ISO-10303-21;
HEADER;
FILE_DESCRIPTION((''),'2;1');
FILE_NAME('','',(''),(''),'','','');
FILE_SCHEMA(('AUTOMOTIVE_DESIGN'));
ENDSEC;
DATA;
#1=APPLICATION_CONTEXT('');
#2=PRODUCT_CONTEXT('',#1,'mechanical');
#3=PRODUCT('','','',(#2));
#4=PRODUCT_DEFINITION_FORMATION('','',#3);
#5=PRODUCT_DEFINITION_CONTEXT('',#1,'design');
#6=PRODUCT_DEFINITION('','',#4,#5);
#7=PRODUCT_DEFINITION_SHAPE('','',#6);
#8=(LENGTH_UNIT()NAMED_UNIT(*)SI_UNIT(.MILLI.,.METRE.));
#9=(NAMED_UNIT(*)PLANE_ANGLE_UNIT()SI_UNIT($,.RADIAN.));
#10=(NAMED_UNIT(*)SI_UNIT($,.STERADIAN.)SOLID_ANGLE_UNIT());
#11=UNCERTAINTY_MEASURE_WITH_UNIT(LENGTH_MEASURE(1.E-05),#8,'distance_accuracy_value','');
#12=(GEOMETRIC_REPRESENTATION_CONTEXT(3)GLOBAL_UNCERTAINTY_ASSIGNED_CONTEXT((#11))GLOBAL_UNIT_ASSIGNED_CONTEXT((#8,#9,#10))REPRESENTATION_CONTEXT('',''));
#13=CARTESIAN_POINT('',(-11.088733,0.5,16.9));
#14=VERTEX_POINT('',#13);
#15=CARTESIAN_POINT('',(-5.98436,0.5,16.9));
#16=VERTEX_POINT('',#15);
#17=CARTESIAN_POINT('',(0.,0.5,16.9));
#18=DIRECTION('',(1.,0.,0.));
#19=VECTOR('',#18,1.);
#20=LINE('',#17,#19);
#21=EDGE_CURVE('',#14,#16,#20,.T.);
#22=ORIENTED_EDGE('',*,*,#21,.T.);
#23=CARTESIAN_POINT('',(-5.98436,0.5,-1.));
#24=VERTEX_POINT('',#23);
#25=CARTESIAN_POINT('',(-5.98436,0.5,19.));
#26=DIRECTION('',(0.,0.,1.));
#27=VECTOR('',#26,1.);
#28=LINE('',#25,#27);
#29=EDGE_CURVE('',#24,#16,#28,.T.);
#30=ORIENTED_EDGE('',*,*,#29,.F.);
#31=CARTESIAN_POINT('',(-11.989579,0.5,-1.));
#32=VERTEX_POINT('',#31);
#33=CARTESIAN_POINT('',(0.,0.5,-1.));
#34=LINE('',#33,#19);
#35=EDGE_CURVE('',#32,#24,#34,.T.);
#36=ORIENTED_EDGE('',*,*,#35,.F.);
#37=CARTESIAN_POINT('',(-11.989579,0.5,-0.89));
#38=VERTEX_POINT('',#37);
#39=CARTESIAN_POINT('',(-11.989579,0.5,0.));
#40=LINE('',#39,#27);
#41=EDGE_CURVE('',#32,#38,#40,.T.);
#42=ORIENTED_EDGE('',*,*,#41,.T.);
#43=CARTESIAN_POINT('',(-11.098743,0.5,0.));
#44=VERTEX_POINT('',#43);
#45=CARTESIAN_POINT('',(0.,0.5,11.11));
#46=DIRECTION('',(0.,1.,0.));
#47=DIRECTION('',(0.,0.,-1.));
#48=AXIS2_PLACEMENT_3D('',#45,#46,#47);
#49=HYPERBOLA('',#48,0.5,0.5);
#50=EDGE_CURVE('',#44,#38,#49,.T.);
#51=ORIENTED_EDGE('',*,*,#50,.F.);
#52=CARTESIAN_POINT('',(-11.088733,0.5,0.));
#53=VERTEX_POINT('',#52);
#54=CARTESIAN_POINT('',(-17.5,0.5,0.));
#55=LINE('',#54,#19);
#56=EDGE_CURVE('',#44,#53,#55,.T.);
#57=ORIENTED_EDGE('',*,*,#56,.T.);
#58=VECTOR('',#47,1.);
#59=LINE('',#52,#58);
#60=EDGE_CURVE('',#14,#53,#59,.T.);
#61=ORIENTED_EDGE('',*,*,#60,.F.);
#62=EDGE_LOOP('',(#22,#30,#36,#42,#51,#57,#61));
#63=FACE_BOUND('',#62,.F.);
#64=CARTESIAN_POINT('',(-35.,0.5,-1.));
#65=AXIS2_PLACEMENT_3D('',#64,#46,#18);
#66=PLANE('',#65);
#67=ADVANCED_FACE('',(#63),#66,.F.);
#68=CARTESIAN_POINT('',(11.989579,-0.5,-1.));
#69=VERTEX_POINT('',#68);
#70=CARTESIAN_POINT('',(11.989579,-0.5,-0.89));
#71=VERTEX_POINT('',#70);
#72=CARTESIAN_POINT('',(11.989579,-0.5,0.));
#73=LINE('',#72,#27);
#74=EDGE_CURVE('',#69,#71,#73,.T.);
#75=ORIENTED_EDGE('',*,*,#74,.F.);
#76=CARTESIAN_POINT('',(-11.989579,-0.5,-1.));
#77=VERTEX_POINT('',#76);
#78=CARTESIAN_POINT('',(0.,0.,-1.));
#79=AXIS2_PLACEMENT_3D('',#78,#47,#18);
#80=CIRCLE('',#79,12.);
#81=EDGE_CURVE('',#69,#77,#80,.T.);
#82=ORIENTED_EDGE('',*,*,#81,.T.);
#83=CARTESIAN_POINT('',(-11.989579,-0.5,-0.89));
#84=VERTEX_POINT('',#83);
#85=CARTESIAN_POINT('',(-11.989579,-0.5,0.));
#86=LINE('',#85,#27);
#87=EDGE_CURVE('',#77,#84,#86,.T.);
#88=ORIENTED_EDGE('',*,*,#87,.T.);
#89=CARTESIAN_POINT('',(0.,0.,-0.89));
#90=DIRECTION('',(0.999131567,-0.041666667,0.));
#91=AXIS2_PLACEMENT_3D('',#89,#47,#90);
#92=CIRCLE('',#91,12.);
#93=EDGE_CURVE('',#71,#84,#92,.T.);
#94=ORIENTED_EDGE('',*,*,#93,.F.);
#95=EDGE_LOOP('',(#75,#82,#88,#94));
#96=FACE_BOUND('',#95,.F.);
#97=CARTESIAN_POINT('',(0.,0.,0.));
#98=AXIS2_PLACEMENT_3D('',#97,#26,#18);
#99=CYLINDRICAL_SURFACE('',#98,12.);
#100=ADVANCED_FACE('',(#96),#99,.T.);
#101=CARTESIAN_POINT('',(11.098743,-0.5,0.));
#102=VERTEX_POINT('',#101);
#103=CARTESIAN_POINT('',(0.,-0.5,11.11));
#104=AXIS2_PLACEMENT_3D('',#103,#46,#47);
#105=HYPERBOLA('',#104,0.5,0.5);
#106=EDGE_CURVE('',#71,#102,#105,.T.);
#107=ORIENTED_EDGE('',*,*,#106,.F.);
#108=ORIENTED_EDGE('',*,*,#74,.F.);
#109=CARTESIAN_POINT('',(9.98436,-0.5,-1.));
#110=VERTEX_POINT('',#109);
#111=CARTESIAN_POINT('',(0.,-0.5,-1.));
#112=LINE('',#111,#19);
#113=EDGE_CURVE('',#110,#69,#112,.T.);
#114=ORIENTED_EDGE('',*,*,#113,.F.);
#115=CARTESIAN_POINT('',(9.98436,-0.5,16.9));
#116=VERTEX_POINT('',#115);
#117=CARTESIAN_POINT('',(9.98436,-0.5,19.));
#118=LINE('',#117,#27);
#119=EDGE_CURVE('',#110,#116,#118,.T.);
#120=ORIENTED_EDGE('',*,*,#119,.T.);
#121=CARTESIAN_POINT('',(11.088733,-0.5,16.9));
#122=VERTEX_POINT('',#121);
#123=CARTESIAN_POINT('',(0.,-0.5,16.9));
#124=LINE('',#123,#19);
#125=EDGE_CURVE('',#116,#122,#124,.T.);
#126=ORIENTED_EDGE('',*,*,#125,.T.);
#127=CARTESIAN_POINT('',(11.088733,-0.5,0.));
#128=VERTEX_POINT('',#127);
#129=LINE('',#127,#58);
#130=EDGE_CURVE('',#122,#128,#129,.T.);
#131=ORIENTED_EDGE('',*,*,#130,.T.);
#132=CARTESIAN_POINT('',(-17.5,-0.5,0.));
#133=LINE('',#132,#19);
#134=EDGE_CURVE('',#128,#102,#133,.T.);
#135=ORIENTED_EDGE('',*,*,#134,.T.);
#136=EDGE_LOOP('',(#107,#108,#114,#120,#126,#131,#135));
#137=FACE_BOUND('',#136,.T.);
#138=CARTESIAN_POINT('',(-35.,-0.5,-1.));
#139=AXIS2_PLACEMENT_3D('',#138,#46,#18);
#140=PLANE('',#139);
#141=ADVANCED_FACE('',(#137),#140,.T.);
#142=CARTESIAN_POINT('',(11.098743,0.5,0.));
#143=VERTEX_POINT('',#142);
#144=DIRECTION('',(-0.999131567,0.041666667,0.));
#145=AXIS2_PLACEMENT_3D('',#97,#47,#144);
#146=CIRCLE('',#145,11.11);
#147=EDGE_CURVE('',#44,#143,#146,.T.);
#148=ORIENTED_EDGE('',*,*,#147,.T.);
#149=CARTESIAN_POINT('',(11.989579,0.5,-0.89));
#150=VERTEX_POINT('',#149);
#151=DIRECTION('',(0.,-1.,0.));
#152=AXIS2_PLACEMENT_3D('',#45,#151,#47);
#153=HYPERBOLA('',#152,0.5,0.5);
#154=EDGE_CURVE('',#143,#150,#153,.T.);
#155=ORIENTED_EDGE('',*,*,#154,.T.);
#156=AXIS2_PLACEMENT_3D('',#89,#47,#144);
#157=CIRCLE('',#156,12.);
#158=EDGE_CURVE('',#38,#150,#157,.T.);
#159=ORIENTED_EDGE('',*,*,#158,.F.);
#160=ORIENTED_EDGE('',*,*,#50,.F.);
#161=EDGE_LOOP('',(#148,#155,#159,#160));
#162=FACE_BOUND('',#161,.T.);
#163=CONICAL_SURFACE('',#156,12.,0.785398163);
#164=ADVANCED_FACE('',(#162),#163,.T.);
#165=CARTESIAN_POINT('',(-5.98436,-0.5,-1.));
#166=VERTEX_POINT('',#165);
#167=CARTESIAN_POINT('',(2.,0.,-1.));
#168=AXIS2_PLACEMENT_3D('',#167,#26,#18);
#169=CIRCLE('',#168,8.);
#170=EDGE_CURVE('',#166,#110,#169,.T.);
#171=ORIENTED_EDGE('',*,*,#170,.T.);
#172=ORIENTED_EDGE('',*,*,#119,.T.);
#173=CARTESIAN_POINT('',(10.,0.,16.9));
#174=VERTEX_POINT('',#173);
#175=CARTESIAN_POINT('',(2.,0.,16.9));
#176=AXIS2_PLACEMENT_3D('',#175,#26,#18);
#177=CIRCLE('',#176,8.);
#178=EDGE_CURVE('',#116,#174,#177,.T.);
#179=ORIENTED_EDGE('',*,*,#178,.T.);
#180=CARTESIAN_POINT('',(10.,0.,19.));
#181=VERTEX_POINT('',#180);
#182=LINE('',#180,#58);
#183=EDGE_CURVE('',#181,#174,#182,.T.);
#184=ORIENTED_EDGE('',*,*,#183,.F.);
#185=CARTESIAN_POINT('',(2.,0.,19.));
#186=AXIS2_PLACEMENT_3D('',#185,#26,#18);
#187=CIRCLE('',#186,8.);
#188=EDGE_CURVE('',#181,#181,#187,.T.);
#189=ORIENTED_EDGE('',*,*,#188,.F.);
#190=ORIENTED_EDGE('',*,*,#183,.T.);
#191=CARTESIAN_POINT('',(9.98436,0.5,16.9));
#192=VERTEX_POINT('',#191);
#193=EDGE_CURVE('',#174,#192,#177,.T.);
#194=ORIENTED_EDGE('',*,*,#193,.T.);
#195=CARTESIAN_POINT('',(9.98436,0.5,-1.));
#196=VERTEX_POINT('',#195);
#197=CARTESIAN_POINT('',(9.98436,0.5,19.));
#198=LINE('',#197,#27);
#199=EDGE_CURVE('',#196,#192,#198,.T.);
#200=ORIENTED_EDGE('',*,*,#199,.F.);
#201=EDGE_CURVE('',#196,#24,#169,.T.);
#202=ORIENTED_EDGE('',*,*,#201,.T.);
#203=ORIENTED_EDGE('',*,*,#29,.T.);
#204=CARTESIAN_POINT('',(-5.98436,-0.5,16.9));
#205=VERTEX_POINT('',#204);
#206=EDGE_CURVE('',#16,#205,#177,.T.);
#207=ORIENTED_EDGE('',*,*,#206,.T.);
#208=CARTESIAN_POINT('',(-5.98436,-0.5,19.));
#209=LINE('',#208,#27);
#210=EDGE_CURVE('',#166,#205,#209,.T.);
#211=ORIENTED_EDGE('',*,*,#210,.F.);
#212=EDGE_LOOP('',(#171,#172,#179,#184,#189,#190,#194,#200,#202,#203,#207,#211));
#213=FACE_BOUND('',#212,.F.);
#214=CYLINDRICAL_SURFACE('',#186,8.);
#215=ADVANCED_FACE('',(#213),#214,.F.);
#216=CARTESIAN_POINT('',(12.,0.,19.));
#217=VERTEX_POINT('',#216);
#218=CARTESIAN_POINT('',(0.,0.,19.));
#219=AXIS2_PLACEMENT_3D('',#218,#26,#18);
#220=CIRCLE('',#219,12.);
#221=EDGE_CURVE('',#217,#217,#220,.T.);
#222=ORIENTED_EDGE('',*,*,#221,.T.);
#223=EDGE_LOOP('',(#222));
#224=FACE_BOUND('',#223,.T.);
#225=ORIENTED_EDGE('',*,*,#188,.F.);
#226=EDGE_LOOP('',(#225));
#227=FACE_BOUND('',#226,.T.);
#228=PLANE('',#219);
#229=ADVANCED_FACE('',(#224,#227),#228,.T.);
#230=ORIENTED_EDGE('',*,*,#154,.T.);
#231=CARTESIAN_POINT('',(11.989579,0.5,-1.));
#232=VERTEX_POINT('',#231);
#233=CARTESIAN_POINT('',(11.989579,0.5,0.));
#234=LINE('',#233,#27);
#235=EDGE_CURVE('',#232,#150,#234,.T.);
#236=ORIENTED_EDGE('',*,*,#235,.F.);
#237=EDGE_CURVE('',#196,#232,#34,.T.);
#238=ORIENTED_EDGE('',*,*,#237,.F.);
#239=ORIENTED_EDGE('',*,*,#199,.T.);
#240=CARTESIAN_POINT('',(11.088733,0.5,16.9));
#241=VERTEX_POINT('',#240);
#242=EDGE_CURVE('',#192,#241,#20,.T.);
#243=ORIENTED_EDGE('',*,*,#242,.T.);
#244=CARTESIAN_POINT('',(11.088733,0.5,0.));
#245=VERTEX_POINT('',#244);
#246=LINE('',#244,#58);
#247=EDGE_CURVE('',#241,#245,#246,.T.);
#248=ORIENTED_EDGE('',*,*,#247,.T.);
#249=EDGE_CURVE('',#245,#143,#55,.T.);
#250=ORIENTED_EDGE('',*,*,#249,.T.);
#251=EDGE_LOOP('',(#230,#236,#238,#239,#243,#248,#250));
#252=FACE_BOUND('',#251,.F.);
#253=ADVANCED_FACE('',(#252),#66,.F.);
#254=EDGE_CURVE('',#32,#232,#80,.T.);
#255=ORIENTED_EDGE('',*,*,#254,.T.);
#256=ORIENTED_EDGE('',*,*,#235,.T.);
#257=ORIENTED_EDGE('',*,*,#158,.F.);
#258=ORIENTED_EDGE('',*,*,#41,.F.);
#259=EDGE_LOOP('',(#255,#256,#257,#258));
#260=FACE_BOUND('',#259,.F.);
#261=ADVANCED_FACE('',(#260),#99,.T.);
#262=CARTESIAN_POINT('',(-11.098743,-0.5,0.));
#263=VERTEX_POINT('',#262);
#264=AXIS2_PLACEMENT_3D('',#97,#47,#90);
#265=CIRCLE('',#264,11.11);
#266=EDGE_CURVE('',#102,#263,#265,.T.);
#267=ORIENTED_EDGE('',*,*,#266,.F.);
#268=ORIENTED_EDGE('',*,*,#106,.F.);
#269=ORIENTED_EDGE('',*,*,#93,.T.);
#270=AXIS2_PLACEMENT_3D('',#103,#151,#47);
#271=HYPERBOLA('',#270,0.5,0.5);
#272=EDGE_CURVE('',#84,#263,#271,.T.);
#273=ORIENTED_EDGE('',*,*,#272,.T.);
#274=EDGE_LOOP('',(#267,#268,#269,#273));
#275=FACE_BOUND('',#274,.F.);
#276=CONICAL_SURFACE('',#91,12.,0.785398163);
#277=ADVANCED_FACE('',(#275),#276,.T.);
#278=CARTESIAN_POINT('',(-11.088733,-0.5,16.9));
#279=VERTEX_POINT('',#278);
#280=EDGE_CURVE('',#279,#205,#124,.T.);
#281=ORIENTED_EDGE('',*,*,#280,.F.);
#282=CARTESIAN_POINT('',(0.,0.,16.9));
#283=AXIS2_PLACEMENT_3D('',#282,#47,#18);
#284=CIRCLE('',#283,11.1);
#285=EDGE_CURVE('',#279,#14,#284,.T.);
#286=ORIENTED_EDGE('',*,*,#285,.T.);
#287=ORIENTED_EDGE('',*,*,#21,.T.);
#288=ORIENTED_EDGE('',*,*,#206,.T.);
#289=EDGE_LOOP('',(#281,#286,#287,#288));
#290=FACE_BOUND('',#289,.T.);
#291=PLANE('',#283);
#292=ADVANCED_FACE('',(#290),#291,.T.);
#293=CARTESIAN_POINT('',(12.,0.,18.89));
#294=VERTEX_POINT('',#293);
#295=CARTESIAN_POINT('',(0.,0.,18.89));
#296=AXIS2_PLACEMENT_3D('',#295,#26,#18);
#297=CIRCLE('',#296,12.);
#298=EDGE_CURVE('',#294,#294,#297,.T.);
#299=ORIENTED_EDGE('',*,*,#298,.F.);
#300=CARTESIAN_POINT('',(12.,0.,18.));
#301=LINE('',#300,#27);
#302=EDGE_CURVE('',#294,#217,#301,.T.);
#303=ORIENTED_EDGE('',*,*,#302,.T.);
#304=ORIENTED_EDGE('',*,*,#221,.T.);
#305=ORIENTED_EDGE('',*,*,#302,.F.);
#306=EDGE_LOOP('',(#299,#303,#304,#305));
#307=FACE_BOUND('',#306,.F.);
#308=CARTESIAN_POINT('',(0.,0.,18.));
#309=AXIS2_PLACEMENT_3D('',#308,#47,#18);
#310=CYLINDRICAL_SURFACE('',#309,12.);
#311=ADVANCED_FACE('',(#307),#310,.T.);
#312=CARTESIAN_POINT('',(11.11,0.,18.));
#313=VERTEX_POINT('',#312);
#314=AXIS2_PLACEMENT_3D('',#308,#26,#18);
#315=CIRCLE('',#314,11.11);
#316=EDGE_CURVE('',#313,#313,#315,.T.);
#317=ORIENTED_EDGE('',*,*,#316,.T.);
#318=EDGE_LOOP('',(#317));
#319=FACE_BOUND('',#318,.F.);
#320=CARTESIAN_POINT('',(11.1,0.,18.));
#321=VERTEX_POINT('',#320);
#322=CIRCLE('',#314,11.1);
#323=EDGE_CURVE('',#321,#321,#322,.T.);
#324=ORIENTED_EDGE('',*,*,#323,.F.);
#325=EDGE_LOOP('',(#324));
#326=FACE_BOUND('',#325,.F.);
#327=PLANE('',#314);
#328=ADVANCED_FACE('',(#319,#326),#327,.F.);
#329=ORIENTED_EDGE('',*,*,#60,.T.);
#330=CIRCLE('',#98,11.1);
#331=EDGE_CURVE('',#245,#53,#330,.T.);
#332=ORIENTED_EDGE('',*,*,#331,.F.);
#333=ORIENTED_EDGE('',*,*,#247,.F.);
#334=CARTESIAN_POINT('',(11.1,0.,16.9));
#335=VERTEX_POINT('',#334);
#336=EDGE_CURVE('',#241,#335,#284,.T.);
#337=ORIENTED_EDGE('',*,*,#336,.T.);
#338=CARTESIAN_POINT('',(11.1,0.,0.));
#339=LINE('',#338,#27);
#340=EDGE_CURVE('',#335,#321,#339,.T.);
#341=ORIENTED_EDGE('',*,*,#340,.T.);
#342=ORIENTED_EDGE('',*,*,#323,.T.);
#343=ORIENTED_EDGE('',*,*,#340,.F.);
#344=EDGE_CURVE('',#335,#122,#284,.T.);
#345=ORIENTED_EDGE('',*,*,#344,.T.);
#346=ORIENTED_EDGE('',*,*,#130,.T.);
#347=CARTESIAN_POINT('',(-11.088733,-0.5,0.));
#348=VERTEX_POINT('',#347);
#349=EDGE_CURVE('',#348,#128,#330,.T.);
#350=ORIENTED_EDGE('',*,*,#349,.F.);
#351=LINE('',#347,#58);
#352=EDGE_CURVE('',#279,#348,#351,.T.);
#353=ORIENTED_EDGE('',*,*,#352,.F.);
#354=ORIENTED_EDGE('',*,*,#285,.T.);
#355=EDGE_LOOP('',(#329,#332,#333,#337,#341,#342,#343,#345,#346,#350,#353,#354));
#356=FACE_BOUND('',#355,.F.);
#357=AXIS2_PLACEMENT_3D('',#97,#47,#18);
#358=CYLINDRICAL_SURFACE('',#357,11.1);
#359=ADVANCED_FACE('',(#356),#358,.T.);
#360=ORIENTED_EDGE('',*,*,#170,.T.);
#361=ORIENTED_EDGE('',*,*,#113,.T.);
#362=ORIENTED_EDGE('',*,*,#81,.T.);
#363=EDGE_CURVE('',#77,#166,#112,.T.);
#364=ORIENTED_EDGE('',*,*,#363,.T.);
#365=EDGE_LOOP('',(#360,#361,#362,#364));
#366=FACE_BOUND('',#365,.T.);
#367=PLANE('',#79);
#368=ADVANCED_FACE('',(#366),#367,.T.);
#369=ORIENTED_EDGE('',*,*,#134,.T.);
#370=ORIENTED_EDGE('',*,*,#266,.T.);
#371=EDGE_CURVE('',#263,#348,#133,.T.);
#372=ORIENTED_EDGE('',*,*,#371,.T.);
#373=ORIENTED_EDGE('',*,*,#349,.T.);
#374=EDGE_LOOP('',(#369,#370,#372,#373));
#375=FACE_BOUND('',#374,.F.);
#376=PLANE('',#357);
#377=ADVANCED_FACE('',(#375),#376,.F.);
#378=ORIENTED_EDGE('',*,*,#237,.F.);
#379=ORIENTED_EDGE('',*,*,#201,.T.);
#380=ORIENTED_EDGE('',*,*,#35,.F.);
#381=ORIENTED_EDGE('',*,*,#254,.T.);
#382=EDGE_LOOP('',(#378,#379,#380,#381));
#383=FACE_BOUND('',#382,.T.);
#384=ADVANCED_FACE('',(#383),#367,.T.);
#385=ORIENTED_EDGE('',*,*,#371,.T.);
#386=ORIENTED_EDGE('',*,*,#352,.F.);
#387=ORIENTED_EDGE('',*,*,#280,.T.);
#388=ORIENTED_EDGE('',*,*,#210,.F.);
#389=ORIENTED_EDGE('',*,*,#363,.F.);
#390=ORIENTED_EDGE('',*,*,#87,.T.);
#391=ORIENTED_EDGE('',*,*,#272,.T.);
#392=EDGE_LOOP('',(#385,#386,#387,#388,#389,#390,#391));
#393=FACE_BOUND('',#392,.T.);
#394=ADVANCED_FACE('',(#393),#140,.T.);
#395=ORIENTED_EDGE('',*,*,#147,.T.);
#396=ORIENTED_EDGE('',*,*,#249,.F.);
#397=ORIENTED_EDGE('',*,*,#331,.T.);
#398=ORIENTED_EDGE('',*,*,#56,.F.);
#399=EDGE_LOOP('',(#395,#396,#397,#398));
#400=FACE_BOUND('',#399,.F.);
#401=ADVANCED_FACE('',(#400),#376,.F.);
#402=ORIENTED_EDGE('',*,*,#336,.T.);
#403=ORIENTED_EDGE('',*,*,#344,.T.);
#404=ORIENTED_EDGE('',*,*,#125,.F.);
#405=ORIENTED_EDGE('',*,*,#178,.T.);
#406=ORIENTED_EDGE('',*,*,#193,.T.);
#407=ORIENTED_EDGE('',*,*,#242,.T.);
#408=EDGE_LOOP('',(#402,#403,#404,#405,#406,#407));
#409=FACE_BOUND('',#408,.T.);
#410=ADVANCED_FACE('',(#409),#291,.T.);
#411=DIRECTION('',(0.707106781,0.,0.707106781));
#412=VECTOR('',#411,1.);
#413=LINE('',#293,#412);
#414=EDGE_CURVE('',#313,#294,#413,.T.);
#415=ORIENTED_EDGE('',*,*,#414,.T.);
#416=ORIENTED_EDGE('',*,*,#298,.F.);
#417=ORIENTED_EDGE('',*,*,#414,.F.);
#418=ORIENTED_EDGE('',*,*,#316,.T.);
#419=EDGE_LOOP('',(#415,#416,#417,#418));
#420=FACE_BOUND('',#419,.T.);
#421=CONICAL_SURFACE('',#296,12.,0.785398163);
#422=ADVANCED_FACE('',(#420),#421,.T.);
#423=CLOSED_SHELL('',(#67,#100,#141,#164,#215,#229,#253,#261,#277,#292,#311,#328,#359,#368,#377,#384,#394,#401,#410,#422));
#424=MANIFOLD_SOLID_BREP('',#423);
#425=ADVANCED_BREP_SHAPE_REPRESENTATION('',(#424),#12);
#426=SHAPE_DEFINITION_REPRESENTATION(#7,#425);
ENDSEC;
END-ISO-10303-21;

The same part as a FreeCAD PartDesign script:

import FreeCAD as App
import Part
import Sketcher

V = App.Vector
Q = App.Units.Quantity


def edges_at(feature, points):
    """Names of the edges that pass closest to the given points."""
    edges = feature.Shape.Edges
    near = lambda p: min(range(len(edges)), key=lambda i: edges[i].distToShape(Part.Vertex(*p))[0])
    return sorted({f"Edge{near(p) + 1}" for p in points})

doc = App.newDocument("Part")
body = doc.addObject("PartDesign::Body", "Body")

# Sketch on XY plane
sketch1 = body.newObject("Sketcher::SketchObject", "Sketch")
sketch1.AttachmentSupport = (doc.getObject("XY_Plane"), [""])
sketch1.MapMode = "FlatFace"
sketch1.addGeometry(Part.Circle(V(0, 0, 0), V(0, 0, 1), 11.1), False)
sketch1.addConstraint([
    Sketcher.Constraint("Coincident", 0, 3, -1, 1),
    Sketcher.Constraint("Diameter", 0, Q("22.2 mm")),
])
pad1 = body.newObject("PartDesign::Pad", "Pad")
pad1.Profile = sketch1
pad1.Length = 18

# Sketch on XY plane
sketch2 = body.newObject("Sketcher::SketchObject", "Sketch001")
sketch2.AttachmentSupport = (doc.getObject("XY_Plane"), [""])
sketch2.MapMode = "FlatFace"
sketch2.AttachmentOffset = App.Placement(V(0, 0, 18), App.Rotation())
sketch2.addGeometry(Part.Circle(V(0, 0, 0), V(0, 0, 1), 12), False)
sketch2.addConstraint([
    Sketcher.Constraint("Coincident", 0, 3, -1, 1),
    Sketcher.Constraint("Diameter", 0, Q("24 mm")),
])
pad2 = body.newObject("PartDesign::Pad", "Pad001")
pad2.Profile = sketch2
pad2.Length = 1

# Sketch on XY plane
sketch3 = body.newObject("Sketcher::SketchObject", "Sketch002")
sketch3.AttachmentSupport = (doc.getObject("XY_Plane"), [""])
sketch3.MapMode = "FlatFace"
sketch3.addGeometry(Part.Circle(V(0, 0, 0), V(0, 0, 1), 12), False)
sketch3.addConstraint([
    Sketcher.Constraint("Coincident", 0, 3, -1, 1),
    Sketcher.Constraint("Diameter", 0, Q("24 mm")),
])
pad3 = body.newObject("PartDesign::Pad", "Pad002")
pad3.Profile = sketch3
pad3.Length = 1
pad3.Reversed = True

# Sketch on XY plane
sketch4 = body.newObject("Sketcher::SketchObject", "Sketch003")
sketch4.AttachmentSupport = (doc.getObject("XY_Plane"), [""])
sketch4.MapMode = "FlatFace"
sketch4.AttachmentOffset = App.Placement(V(0, 0, 19), App.Rotation())
sketch4.addGeometry(Part.Circle(V(2, 0, 0), V(0, 0, 1), 8), False)
sketch4.addConstraint([
    Sketcher.Constraint("PointOnObject", 0, 3, -1),
    Sketcher.Constraint("Diameter", 0, Q("16 mm")),
    Sketcher.Constraint("DistanceX", -1, 1, 0, 3, Q("2 mm")),
])
pocket1 = body.newObject("PartDesign::Pocket", "Pocket")
pocket1.Profile = sketch4
pocket1.Type = "ThroughAll"

# Sketch on XY plane
sketch5 = body.newObject("Sketcher::SketchObject", "Sketch004")
sketch5.AttachmentSupport = (doc.getObject("XY_Plane"), [""])
sketch5.MapMode = "FlatFace"
sketch5.AttachmentOffset = App.Placement(V(0, 0, -1), App.Rotation())
sketch5.addGeometry([
    Part.LineSegment(V(-35, -0.5, 0), V(-35, 0.5, 0)),
    Part.LineSegment(V(-35, 0.5, 0), V(35, 0.5, 0)),
    Part.LineSegment(V(35, 0.5, 0), V(35, -0.5, 0)),
    Part.LineSegment(V(35, -0.5, 0), V(-35, -0.5, 0)),
], False)
sketch5.addConstraint([
    Sketcher.Constraint("Coincident", 0, 2, 1, 1),
    Sketcher.Constraint("Coincident", 1, 2, 2, 1),
    Sketcher.Constraint("Coincident", 2, 2, 3, 1),
    Sketcher.Constraint("Coincident", 3, 2, 0, 1),
    Sketcher.Constraint("Vertical", 0),
    Sketcher.Constraint("Horizontal", 1),
    Sketcher.Constraint("Vertical", 2),
    Sketcher.Constraint("Horizontal", 3),
    Sketcher.Constraint("Symmetric", 0, 2, 2, 2, -1, 1),
    Sketcher.Constraint("DistanceX", 1, 1, 1, 2, Q("70 mm")),
    Sketcher.Constraint("DistanceY", 0, 1, 0, 2, Q("1 mm")),
])
pocket2 = body.newObject("PartDesign::Pocket", "Pocket001")
pocket2.Profile = sketch5
pocket2.Length = 17.9
pocket2.Reversed = True
doc.recompute()

chamfer = body.newObject("PartDesign::Chamfer", "Chamfer")
chamfer.Base = (pocket2, edges_at(pocket2, [(0, -12, 0), (0, 12, 0), (-12, 0, 18)]))
chamfer.Size = 0.89

doc.recompute()
